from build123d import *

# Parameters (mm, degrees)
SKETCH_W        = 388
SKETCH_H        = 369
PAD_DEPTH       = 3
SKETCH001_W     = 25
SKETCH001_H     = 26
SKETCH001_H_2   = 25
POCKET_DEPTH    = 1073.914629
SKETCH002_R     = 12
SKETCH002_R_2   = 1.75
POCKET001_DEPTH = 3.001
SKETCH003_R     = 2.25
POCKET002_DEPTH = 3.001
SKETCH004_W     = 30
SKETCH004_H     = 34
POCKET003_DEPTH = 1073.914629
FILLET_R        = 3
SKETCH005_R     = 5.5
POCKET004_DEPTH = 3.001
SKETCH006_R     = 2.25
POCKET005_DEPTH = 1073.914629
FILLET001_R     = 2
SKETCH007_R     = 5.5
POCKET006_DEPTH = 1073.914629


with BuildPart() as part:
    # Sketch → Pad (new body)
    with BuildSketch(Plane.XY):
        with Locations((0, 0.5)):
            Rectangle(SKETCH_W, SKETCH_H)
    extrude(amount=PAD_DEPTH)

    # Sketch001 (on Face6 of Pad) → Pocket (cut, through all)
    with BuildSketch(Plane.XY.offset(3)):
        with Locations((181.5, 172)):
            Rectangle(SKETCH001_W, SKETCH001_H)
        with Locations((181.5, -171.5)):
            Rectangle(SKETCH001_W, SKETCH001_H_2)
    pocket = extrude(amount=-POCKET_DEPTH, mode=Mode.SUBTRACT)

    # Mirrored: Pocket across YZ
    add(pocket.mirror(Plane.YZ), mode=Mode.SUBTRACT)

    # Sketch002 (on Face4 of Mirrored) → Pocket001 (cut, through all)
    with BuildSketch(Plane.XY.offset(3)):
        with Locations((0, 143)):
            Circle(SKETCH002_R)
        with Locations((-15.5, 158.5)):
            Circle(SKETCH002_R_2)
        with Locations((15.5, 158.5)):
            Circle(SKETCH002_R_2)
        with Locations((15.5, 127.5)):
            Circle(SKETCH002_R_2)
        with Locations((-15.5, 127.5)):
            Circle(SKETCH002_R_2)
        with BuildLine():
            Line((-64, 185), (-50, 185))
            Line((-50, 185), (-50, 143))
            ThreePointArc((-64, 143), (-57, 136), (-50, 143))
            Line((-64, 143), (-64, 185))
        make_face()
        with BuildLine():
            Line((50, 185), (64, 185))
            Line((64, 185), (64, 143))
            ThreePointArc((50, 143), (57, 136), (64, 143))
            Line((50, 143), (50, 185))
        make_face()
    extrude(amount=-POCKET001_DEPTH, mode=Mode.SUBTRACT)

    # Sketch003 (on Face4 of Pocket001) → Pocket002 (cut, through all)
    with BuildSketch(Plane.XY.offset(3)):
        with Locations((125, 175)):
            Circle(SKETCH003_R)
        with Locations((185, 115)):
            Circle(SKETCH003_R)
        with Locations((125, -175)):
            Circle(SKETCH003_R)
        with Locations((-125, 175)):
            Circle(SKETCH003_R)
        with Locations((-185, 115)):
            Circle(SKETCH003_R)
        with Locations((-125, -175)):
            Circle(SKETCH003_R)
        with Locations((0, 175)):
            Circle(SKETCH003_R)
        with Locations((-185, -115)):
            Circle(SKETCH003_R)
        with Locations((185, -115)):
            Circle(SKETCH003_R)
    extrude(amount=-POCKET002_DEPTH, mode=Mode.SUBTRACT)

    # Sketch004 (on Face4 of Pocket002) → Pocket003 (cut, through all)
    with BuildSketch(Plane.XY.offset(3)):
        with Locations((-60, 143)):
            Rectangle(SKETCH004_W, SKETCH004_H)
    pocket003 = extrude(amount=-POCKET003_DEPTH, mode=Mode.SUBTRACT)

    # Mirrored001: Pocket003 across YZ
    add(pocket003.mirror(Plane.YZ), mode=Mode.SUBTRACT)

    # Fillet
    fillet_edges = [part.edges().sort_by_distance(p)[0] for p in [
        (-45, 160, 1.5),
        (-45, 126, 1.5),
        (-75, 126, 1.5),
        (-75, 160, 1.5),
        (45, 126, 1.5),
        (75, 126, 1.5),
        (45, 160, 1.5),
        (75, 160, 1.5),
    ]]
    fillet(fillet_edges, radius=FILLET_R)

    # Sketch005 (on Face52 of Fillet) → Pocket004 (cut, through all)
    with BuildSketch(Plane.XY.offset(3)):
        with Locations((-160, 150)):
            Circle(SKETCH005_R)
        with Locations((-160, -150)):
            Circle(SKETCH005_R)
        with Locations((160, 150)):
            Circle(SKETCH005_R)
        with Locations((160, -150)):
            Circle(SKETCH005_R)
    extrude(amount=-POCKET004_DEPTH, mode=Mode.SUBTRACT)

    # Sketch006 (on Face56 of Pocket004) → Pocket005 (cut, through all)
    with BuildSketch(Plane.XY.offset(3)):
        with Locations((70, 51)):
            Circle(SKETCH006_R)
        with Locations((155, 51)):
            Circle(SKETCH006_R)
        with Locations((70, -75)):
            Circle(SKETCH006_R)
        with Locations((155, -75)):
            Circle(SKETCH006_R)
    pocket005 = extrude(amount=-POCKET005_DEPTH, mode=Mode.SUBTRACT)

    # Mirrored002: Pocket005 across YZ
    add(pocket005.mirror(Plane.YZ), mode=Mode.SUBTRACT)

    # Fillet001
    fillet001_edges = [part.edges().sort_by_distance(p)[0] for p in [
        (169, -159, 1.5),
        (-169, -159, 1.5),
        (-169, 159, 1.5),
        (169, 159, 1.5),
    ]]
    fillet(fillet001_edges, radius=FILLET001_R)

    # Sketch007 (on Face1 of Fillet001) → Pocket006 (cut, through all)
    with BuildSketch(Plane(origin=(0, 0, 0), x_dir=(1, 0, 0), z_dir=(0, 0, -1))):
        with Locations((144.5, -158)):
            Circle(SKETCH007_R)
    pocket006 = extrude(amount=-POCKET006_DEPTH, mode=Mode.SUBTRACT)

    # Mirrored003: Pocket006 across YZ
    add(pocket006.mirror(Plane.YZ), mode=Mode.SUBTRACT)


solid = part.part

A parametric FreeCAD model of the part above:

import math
import FreeCAD as App
import Part
import Sketcher

V = App.Vector
Q = App.Units.Quantity


def edges_at(feature, points):
    """Names of the edges that pass closest to the given points."""
    edges = feature.Shape.Edges
    near = lambda p: min(range(len(edges)), key=lambda i: edges[i].distToShape(Part.Vertex(*p))[0])
    return sorted({f"Edge{near(p) + 1}" for p in points})


def add_polygon(sketch, points):
    """Adds a closed chain of lines whose ends are joined by coincident constraints."""
    first, n = sketch.GeometryCount, len(points)
    for a, b in zip(points, points[1:] + points[:1]):
        sketch.addGeometry(Part.LineSegment(App.Vector(*a, 0), App.Vector(*b, 0)), False)
    for i in range(n):
        sketch.addConstraint(Sketcher.Constraint("Coincident", first + i, 2, first + (i + 1) % n, 1))

doc = App.newDocument("Part")
body = doc.addObject("PartDesign::Body", "Body")

sketch1 = body.newObject("Sketcher::SketchObject", "Sketch")
sketch1.AttachmentSupport = (doc.getObject("XY_Plane"), [""])
sketch1.MapMode = "FlatFace"
add_polygon(sketch1, [(-194, 185), (-194, -184), (194, -184), (194, 185)])
sketch1.addConstraint([
    Sketcher.Constraint("Vertical", 0),
    Sketcher.Constraint("Horizontal", 1),
    Sketcher.Constraint("Vertical", 2),
    Sketcher.Constraint("Horizontal", 3),
    Sketcher.Constraint("DistanceX", 1, 1, 1, 2, Q("388 mm")),
    Sketcher.Constraint("DistanceY", 0, 2, 0, 1, Q("369 mm")),
    Sketcher.Constraint("DistanceX", 0, 2, -1, 1, Q("194 mm")),
    Sketcher.Constraint("DistanceY", 0, 2, -1, 1, Q("184 mm")),
])
pad1 = body.newObject("PartDesign::Pad", "Pad")
pad1.Profile = sketch1
pad1.Length = 3

sketch2 = body.newObject("Sketcher::SketchObject", "Sketch001")
sketch2.AttachmentSupport = (doc.getObject("XY_Plane"), [""])
sketch2.MapMode = "FlatFace"
sketch2.AttachmentOffset = App.Placement(V(0, 0, 3), App.Rotation())
add_polygon(sketch2, [(169, 185), (169, 159), (194, 159), (194, 185)])
add_polygon(sketch2, [(169, -159), (169, -184), (194, -184), (194, -159)])
sketch2.addConstraint([
    Sketcher.Constraint("Vertical", 0),
    Sketcher.Constraint("Horizontal", 1),
    Sketcher.Constraint("Vertical", 2),
    Sketcher.Constraint("Horizontal", 3),
    Sketcher.Constraint("Vertical", 4),
    Sketcher.Constraint("Horizontal", 5),
    Sketcher.Constraint("Vertical", 6),
    Sketcher.Constraint("Horizontal", 7),
    Sketcher.Constraint("Symmetric", 1, 2, 6, 2, -1),
    Sketcher.Constraint("Vertical", 3, 2, 4, 2),
    Sketcher.Constraint("Equal", 7, 4),
    Sketcher.Constraint("DistanceX", 1, 1, 1, 2, Q("25 mm")),
    Sketcher.Constraint("DistanceY", 0, 2, 0, 1, Q("26 mm")),
    Sketcher.Constraint("DistanceX", -1, 1, 0, 2, Q("169 mm")),
    Sketcher.Constraint("DistanceY", -1, 1, 0, 2, Q("159 mm")),
])
pocket1 = body.newObject("PartDesign::Pocket", "Pocket")
pocket1.Profile = sketch2
pocket1.Type = "ThroughAll"
doc.recompute()

mirrored = body.newObject("PartDesign::Mirrored", "Mirrored")
mirrored.Originals = [pocket1]
mirrored.MirrorPlane = (doc.getObject("YZ_Plane"), [""])
body.Tip = mirrored

sketch3 = body.newObject("Sketcher::SketchObject", "Sketch002")
sketch3.AttachmentSupport = (doc.getObject("XY_Plane"), [""])
sketch3.MapMode = "FlatFace"
sketch3.AttachmentOffset = App.Placement(V(0, 0, 3), App.Rotation())
sketch3.addGeometry([
    Part.Circle(V(0, 143, 0), V(0, 0, 1), 12),
    Part.Circle(V(-15.5, 158.5, 0), V(0, 0, 1), 1.75),
    Part.Circle(V(15.5, 158.5, 0), V(0, 0, 1), 1.75),
    Part.Circle(V(15.5, 127.5, 0), V(0, 0, 1), 1.75),
    Part.Circle(V(-15.5, 127.5, 0), V(0, 0, 1), 1.75),
    Part.LineSegment(V(-50, 185, 0), V(-64, 185, 0)),
    Part.LineSegment(V(-64, 185, 0), V(-64, 143, 0)),
    Part.ArcOfCircle(Part.Circle(V(-57, 143, 0), V(0, 0, 1), 7), math.radians(180), math.radians(360)),
    Part.LineSegment(V(-50, 143, 0), V(-50, 185, 0)),
    Part.LineSegment(V(64, 185, 0), V(50, 185, 0)),
    Part.LineSegment(V(50, 185, 0), V(50, 143, 0)),
    Part.ArcOfCircle(Part.Circle(V(57, 143, 0), V(0, 0, 1), 7), math.radians(180), math.radians(360)),
    Part.LineSegment(V(64, 143, 0), V(64, 185, 0)),
], False)
sketch3.addConstraint([
    Sketcher.Constraint("Coincident", 5, 2, 6, 1),
    Sketcher.Constraint("Tangent", 6, 2, 7, 1),
    Sketcher.Constraint("Tangent", 7, 2, 8, 1),
    Sketcher.Constraint("Coincident", 8, 2, 5, 1),
    Sketcher.Constraint("Coincident", 9, 2, 10, 1),
    Sketcher.Constraint("Tangent", 10, 2, 11, 1),
    Sketcher.Constraint("Tangent", 11, 2, 12, 1),
    Sketcher.Constraint("Coincident", 12, 2, 9, 1),
    Sketcher.Constraint("Horizontal", 5),
    Sketcher.Constraint("Vertical", 6),
    Sketcher.Constraint("Vertical", 8),
    Sketcher.Constraint("Horizontal", 9),
    Sketcher.Constraint("Vertical", 10),
    Sketcher.Constraint("Vertical", 12),
    Sketcher.Constraint("Equal", 1, 2),
    Sketcher.Constraint("Equal", 2, 3),
    Sketcher.Constraint("Equal", 3, 4),
    Sketcher.Constraint("Equal", 7, 11),
    Sketcher.Constraint("Symmetric", 1, 3, 2, 3, -2),
    Sketcher.Constraint("Symmetric", 3, 3, 4, 3, -2),
    Sketcher.Constraint("Symmetric", 7, 3, 11, 3, -2),
    Sketcher.Constraint("PointOnObject", 0, 3, -2),
    Sketcher.Constraint("Horizontal", 0, 3, 7, 3),
    Sketcher.Constraint("Horizontal", 8, 2, 9, 2),
    Sketcher.Constraint("Vertical", 2, 3, 3, 3),
    Sketcher.Constraint("Diameter", 0, Q("24 mm")),
    Sketcher.Constraint("Radius", 7, Q("7 mm")),
    Sketcher.Constraint("Diameter", 1, Q("3.5 mm")),
    Sketcher.Constraint("DistanceY", 6, 2, 6, 1, Q("42 mm")),
    Sketcher.Constraint("DistanceY", -1, 1, 0, 3, Q("143 mm")),
    Sketcher.Constraint("DistanceX", 7, 3, -1, 1, Q("57 mm")),
    Sketcher.Constraint("DistanceX", 1, 3, 2, 3, Q("31 mm")),
    Sketcher.Constraint("DistanceY", 3, 3, 2, 3, Q("31 mm")),
    Sketcher.Constraint("DistanceY", -1, 1, 1, 3, Q("158.5 mm")),
])
pocket2 = body.newObject("PartDesign::Pocket", "Pocket001")
pocket2.Profile = sketch3
pocket2.Type = "ThroughAll"

sketch4 = body.newObject("Sketcher::SketchObject", "Sketch003")
sketch4.AttachmentSupport = (doc.getObject("XY_Plane"), [""])
sketch4.MapMode = "FlatFace"
sketch4.AttachmentOffset = App.Placement(V(0, 0, 3), App.Rotation())
sketch4.addGeometry([
    Part.Circle(V(125, 175, 0), V(0, 0, 1), 2.25),
    Part.Circle(V(185, 115, 0), V(0, 0, 1), 2.25),
    Part.Circle(V(125, -175, 0), V(0, 0, 1), 2.25),
    Part.Circle(V(-125, 175, 0), V(0, 0, 1), 2.25),
    Part.Circle(V(-185, 115, 0), V(0, 0, 1), 2.25),
    Part.Circle(V(-125, -175, 0), V(0, 0, 1), 2.25),
    Part.Circle(V(0, 175, 0), V(0, 0, 1), 2.25),
    Part.Circle(V(-185, -115, 0), V(0, 0, 1), 2.25),
    Part.Circle(V(185, -115, 0), V(0, 0, 1), 2.25),
], False)
sketch4.addConstraint([
    Sketcher.Constraint("Equal", 0, 1),
    Sketcher.Constraint("Equal", 1, 2),
    Sketcher.Constraint("Equal", 2, 3),
    Sketcher.Constraint("Equal", 3, 4),
    Sketcher.Constraint("Equal", 4, 5),
    Sketcher.Constraint("Equal", 5, 6),
    Sketcher.Constraint("Equal", 6, 7),
    Sketcher.Constraint("Equal", 7, 8),
    Sketcher.Constraint("Symmetric", 2, 3, 3, 3, -1, 1),
    Sketcher.Constraint("Symmetric", 0, 3, 5, 3, -1, 1),
    Sketcher.Constraint("Symmetric", 1, 3, 7, 3, -1, 1),
    Sketcher.Constraint("Symmetric", 4, 3, 8, 3, -1, 1),
    Sketcher.Constraint("Symmetric", 0, 3, 3, 3, -2),
    Sketcher.Constraint("Symmetric", 1, 3, 4, 3, -2),
    Sketcher.Constraint("PointOnObject", 6, 3, -2),
    Sketcher.Constraint("Horizontal", 3, 3, 6, 3),
    Sketcher.Constraint("Diameter", 0, Q("4.5 mm")),
    Sketcher.Constraint("DistanceX", -1, 1, 0, 3, Q("125 mm")),
    Sketcher.Constraint("DistanceY", -1, 1, 0, 3, Q("175 mm")),
    Sketcher.Constraint("DistanceX", -1, 1, 1, 3, Q("185 mm")),
    Sketcher.Constraint("DistanceY", -1, 1, 1, 3, Q("115 mm")),
])
pocket3 = body.newObject("PartDesign::Pocket", "Pocket002")
pocket3.Profile = sketch4
pocket3.Type = "ThroughAll"

sketch5 = body.newObject("Sketcher::SketchObject", "Sketch004")
sketch5.AttachmentSupport = (doc.getObject("XY_Plane"), [""])
sketch5.MapMode = "FlatFace"
sketch5.AttachmentOffset = App.Placement(V(0, 0, 3), App.Rotation())
add_polygon(sketch5, [(-75, 160), (-75, 126), (-45, 126), (-45, 160)])
sketch5.addConstraint([
    Sketcher.Constraint("Vertical", 0),
    Sketcher.Constraint("Horizontal", 1),
    Sketcher.Constraint("Vertical", 2),
    Sketcher.Constraint("Horizontal", 3),
    Sketcher.Constraint("DistanceX", 1, 1, 1, 2, Q("30 mm")),
    Sketcher.Constraint("DistanceY", 0, 2, 0, 1, Q("34 mm")),
    Sketcher.Constraint("DistanceX", 0, 2, -1, 1, Q("75 mm")),
    Sketcher.Constraint("DistanceY", -1, 1, 0, 2, Q("126 mm")),
])
pocket4 = body.newObject("PartDesign::Pocket", "Pocket003")
pocket4.Profile = sketch5
pocket4.Type = "ThroughAll"
doc.recompute()

mirrored2 = body.newObject("PartDesign::Mirrored", "Mirrored001")
mirrored2.Originals = [pocket4]
mirrored2.MirrorPlane = (doc.getObject("YZ_Plane"), [""])
body.Tip = mirrored2
doc.recompute()

fillet = body.newObject("PartDesign::Fillet", "Fillet")
fillet.Base = (mirrored2, edges_at(mirrored2, [
    (-45, 160, 1.5),
    (-45, 126, 1.5),
    (-75, 126, 1.5),
    (-75, 160, 1.5),
    (45, 126, 1.5),
    (75, 126, 1.5),
    (45, 160, 1.5),
    (75, 160, 1.5),
]))
fillet.Radius = 3

sketch6 = body.newObject("Sketcher::SketchObject", "Sketch005")
sketch6.AttachmentSupport = (doc.getObject("XY_Plane"), [""])
sketch6.MapMode = "FlatFace"
sketch6.AttachmentOffset = App.Placement(V(0, 0, 3), App.Rotation())
sketch6.addGeometry([
    Part.Circle(V(-160, 150, 0), V(0, 0, 1), 5.5),
    Part.Circle(V(-160, -150, 0), V(0, 0, 1), 5.5),
    Part.Circle(V(160, 150, 0), V(0, 0, 1), 5.5),
    Part.Circle(V(160, -150, 0), V(0, 0, 1), 5.5),
], False)
sketch6.addConstraint([
    Sketcher.Constraint("Equal", 0, 1),
    Sketcher.Constraint("Equal", 1, 2),
    Sketcher.Constraint("Equal", 2, 3),
    Sketcher.Constraint("Symmetric", 1, 3, 2, 3, -1, 1),
    Sketcher.Constraint("Symmetric", 0, 3, 3, 3, -1, 1),
    Sketcher.Constraint("Symmetric", 0, 3, 2, 3, -2),
    Sketcher.Constraint("Diameter", 0, Q("11 mm")),
    Sketcher.Constraint("DistanceX", 0, 3, -1, 1, Q("160 mm")),
    Sketcher.Constraint("DistanceY", -1, 1, 0, 3, Q("150 mm")),
])
pocket5 = body.newObject("PartDesign::Pocket", "Pocket004")
pocket5.Profile = sketch6
pocket5.Type = "ThroughAll"

sketch7 = body.newObject("Sketcher::SketchObject", "Sketch006")
sketch7.AttachmentSupport = (doc.getObject("XY_Plane"), [""])
sketch7.MapMode = "FlatFace"
sketch7.AttachmentOffset = App.Placement(V(0, 0, 3), App.Rotation())
sketch7.addGeometry([
    Part.Circle(V(70, 51, 0), V(0, 0, 1), 2.25),
    Part.Circle(V(155, 51, 0), V(0, 0, 1), 2.25),
    Part.Circle(V(70, -75, 0), V(0, 0, 1), 2.25),
    Part.Circle(V(155, -75, 0), V(0, 0, 1), 2.25),
], False)
sketch7.addConstraint([
    Sketcher.Constraint("Equal", 0, 1),
    Sketcher.Constraint("Equal", 1, 2),
    Sketcher.Constraint("Equal", 2, 3),
    Sketcher.Constraint("Horizontal", 0, 3, 1, 3),
    Sketcher.Constraint("Horizontal", 2, 3, 3, 3),
    Sketcher.Constraint("Vertical", 0, 3, 2, 3),
    Sketcher.Constraint("Vertical", 1, 3, 3, 3),
    Sketcher.Constraint("Diameter", 0, Q("4.5 mm")),
    Sketcher.Constraint("DistanceX", -1, 1, 0, 3, Q("70 mm")),
    Sketcher.Constraint("DistanceY", -1, 1, 0, 3, Q("51 mm")),
    Sketcher.Constraint("DistanceX", -1, 1, 1, 3, Q("155 mm")),
    Sketcher.Constraint("DistanceY", 2, 3, -1, 1, Q("75 mm")),
])
pocket6 = body.newObject("PartDesign::Pocket", "Pocket005")
pocket6.Profile = sketch7
pocket6.Type = "ThroughAll"
doc.recompute()

mirrored3 = body.newObject("PartDesign::Mirrored", "Mirrored002")
mirrored3.Originals = [pocket6]
mirrored3.MirrorPlane = (doc.getObject("YZ_Plane"), [""])
body.Tip = mirrored3
doc.recompute()

fillet2 = body.newObject("PartDesign::Fillet", "Fillet001")
fillet2.Base = (mirrored3, edges_at(mirrored3, [
    (169, -159, 1.5),
    (-169, -159, 1.5),
    (-169, 159, 1.5),
    (169, 159, 1.5),
]))
fillet2.Radius = 2

sketch8 = body.newObject("Sketcher::SketchObject", "Sketch007")
sketch8.AttachmentSupport = (doc.getObject("XY_Plane"), [""])
sketch8.MapMode = "FlatFace"
sketch8.addGeometry(Part.Circle(V(144.5, 158, 0), V(0, 0, 1), 5.5), False)
sketch8.addConstraint([
    Sketcher.Constraint("Diameter", 0, Q("11 mm")),
    Sketcher.Constraint("DistanceY", -1, 1, 0, 3, Q("158 mm")),
    Sketcher.Constraint("DistanceX", -1, 1, 0, 3, Q("144.5 mm")),
])
pocket7 = body.newObject("PartDesign::Pocket", "Pocket006")
pocket7.Profile = sketch8
pocket7.Type = "ThroughAll"
pocket7.Reversed = True
doc.recompute()

mirrored4 = body.newObject("PartDesign::Mirrored", "Mirrored003")
mirrored4.Originals = [pocket7]
mirrored4.MirrorPlane = (doc.getObject("YZ_Plane"), [""])
body.Tip = mirrored4

doc.recompute()
